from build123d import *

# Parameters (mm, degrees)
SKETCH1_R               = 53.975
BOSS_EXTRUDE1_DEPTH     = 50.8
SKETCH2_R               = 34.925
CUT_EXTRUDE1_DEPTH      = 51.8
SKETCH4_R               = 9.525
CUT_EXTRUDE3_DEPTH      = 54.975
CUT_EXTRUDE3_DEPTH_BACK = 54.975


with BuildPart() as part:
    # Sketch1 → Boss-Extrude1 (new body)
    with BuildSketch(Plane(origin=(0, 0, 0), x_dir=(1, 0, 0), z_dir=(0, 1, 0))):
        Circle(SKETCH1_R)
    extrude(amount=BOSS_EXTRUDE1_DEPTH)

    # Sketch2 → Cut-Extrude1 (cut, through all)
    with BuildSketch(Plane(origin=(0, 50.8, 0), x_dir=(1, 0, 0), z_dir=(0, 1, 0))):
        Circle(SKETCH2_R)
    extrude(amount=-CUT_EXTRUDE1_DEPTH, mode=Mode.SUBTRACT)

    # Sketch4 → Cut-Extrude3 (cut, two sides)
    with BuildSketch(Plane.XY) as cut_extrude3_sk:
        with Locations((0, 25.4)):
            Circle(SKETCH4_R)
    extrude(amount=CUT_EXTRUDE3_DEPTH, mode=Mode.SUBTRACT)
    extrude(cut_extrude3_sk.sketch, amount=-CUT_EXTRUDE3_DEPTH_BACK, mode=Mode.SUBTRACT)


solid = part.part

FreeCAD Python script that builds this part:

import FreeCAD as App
import Part
import Sketcher
Q = App.Units.Quantity

doc = App.newDocument("Part")
body = doc.addObject("PartDesign::Body", "Body")

# Sketch on XZ plane
sketch1 = body.newObject("Sketcher::SketchObject", "Sketch")
sketch1.AttachmentSupport = (doc.getObject("XZ_Plane"), [""])
sketch1.MapMode = "FlatFace"
sketch1.addGeometry(Part.Circle(App.Vector(0, 0, 0), App.Vector(0, 0, 1), 54), False)
sketch1.addConstraint(Sketcher.Constraint("Coincident", 0, 3, -1, 1))
sketch1.addConstraint(Sketcher.Constraint("Diameter", 0, Q("4.25 in")))
pad1 = body.newObject("PartDesign::Pad", "Pad")
pad1.Profile = sketch1
pad1.Length = Q("2 in")
pad1.Reversed = True

# Sketch on XZ plane
sketch2 = body.newObject("Sketcher::SketchObject", "Sketch001")
sketch2.AttachmentSupport = (doc.getObject("XZ_Plane"), [""])
sketch2.MapMode = "FlatFace"
sketch2.AttachmentOffset = App.Placement(App.Vector(0, 0, -2 * 25.4), App.Rotation())
sketch2.addGeometry(Part.Circle(App.Vector(0, 0, 0), App.Vector(0, 0, 1), 35), False)
sketch2.addConstraint(Sketcher.Constraint("Coincident", 0, 3, -1, 1))
sketch2.addConstraint(Sketcher.Constraint("Diameter", 0, Q("2.75 in")))
pocket1 = body.newObject("PartDesign::Pocket", "Pocket")
pocket1.Profile = sketch2
pocket1.Type = "ThroughAll"
pocket1.Reversed = True

# Sketch on XY plane
sketch3 = body.newObject("Sketcher::SketchObject", "Sketch002")
sketch3.AttachmentSupport = (doc.getObject("XY_Plane"), [""])
sketch3.MapMode = "FlatFace"
sketch3.addGeometry(Part.Circle(App.Vector(0, 25, 0), App.Vector(0, 0, 1), 10), False)
sketch3.addConstraint(Sketcher.Constraint("PointOnObject", 0, 3, -2))
sketch3.addConstraint(Sketcher.Constraint("Diameter", 0, Q("0.75 in")))
sketch3.addConstraint(Sketcher.Constraint("DistanceY", -1, 1, 0, 3, Q("1 in")))
pocket2 = body.newObject("PartDesign::Pocket", "Pocket001")
pocket2.Profile = sketch3
pocket2.Type = "ThroughAll"
pocket2.Midplane = True

doc.recompute()
